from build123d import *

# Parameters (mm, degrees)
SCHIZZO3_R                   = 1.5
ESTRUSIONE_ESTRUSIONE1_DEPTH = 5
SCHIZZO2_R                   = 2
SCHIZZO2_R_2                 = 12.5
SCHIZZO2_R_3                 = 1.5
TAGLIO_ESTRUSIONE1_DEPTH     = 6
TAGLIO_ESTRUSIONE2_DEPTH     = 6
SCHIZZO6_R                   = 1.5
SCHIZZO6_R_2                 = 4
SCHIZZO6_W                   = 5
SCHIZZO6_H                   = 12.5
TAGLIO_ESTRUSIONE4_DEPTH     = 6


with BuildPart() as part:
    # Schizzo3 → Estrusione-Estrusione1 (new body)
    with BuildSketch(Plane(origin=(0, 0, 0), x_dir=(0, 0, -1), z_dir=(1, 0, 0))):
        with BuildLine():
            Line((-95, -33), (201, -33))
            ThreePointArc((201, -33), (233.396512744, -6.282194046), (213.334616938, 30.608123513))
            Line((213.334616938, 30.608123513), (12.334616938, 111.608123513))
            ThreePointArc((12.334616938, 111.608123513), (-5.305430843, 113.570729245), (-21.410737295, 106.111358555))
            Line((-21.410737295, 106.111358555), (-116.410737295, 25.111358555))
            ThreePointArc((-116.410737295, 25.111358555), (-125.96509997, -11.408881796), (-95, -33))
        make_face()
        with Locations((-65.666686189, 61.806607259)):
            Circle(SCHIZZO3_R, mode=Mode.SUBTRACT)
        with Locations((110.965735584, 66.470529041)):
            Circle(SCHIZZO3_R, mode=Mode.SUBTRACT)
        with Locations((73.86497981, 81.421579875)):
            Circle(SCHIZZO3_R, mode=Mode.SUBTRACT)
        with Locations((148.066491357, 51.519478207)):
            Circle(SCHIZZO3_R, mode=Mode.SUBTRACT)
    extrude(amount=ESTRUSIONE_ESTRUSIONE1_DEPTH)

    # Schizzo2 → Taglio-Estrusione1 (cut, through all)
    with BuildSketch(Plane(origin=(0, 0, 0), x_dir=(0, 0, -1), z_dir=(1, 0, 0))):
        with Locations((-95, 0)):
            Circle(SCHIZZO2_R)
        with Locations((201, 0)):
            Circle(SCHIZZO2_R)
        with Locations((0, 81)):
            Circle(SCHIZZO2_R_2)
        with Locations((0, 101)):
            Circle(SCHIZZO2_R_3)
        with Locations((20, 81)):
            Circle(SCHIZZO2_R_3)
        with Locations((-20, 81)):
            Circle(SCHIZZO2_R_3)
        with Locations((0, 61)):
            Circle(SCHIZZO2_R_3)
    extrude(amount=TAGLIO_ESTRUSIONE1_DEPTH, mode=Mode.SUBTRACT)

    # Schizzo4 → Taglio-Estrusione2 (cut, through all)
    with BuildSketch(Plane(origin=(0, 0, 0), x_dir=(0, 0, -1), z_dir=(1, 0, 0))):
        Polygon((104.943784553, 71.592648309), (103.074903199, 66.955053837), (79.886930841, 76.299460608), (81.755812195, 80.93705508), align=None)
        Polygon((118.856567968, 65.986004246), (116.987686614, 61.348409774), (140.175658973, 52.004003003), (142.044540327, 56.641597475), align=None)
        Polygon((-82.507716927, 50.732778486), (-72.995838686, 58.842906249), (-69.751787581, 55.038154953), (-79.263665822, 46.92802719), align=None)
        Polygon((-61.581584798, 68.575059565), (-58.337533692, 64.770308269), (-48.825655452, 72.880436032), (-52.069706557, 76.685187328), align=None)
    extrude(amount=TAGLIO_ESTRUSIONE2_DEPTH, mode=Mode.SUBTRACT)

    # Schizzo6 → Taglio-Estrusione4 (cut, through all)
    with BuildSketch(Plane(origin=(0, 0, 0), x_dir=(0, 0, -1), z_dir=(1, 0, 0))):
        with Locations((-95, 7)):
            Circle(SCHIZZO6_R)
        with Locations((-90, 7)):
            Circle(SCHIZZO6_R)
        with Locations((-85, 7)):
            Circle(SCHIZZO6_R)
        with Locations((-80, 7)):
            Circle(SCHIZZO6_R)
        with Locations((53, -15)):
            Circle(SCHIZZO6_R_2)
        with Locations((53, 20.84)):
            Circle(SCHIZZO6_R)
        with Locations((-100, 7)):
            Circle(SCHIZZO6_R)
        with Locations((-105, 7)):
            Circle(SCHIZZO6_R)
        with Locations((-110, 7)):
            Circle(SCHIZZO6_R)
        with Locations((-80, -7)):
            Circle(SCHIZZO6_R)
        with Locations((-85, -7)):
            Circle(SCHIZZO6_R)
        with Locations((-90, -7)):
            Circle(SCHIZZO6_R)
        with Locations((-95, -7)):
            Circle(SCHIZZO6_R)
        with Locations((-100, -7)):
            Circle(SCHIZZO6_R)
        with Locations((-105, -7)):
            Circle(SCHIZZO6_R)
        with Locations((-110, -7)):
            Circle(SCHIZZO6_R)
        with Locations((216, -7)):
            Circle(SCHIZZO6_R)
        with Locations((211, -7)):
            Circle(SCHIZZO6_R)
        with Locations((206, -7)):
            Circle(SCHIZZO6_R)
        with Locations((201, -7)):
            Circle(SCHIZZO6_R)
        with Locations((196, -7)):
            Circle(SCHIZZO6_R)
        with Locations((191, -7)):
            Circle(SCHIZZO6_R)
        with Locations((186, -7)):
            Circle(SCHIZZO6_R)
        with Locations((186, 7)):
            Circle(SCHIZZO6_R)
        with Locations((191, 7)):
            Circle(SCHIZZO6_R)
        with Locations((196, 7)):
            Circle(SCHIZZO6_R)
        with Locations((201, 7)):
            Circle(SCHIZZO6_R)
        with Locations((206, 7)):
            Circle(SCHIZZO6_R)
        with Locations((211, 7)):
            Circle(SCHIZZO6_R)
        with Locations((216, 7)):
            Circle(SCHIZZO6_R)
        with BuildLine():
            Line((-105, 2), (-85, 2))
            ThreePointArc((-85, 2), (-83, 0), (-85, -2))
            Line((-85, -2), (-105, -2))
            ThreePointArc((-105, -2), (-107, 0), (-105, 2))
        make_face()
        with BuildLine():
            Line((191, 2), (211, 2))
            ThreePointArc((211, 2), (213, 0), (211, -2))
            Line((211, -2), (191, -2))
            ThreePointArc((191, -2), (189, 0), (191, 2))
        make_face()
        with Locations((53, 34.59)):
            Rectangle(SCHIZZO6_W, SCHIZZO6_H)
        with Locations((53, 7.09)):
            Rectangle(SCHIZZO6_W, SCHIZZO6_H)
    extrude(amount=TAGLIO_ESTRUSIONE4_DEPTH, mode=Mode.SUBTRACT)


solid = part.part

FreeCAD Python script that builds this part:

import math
import FreeCAD as App
import Part
import Sketcher
from FreeCAD import Vector

doc = App.newDocument("Part")
body = doc.addObject("PartDesign::Body", "Body")

# Sketch on YZ plane
sketch1 = doc.addObject("Sketcher::SketchObject", "Sketch")
body.addObject(sketch1)
sketch1.AttachmentSupport = (doc.YZ_Plane, [""])
sketch1.MapMode = "FlatFace"
sketch1.addGeometry(Part.LineSegment(Vector(-33, 95, 0), Vector(-33, -201, 0)), False)
sketch1.addGeometry(Part.ArcOfCircle(Part.Circle(Vector(0, -201, 0), Vector(0, 0, 1), 33), math.radians(180), math.radians(338)), False)
sketch1.addGeometry(Part.LineSegment(Vector(30.6, -213.3, 0), Vector(111.6, -12.3, 0)), False)
sketch1.addGeometry(Part.ArcOfCircle(Part.Circle(Vector(81, 0, 0), Vector(0, 0, 1), 33), math.radians(-22), math.radians(40)), False)
sketch1.addGeometry(Part.LineSegment(Vector(106.1, 21.4, 0), Vector(25.1, 116.4, 0)), False)
sketch1.addGeometry(Part.ArcOfCircle(Part.Circle(Vector(0, 95, 0), Vector(0, 0, 1), 33), math.radians(40), math.radians(180)), False)
sketch1.addGeometry(Part.Circle(Vector(61.8, 65.7, 0), Vector(0, 0, 1), 1.5), False)
sketch1.addGeometry(Part.Circle(Vector(51.5, -148.1, 0), Vector(0, 0, 1), 1.5), False)
sketch1.addGeometry(Part.Circle(Vector(66.5, -111, 0), Vector(0, 0, 1), 1.5), False)
sketch1.addGeometry(Part.Circle(Vector(81.4, -73.9, 0), Vector(0, 0, 1), 1.5), False)
sketch1.addConstraint(Sketcher.Constraint("Tangent", 0, 2, 1, 1))
sketch1.addConstraint(Sketcher.Constraint("Tangent", 1, 2, 2, 1))
sketch1.addConstraint(Sketcher.Constraint("Tangent", 2, 2, 3, 1))
sketch1.addConstraint(Sketcher.Constraint("Tangent", 3, 2, 4, 1))
sketch1.addConstraint(Sketcher.Constraint("Tangent", 4, 2, 5, 1))
sketch1.addConstraint(Sketcher.Constraint("Tangent", 5, 2, 0, 1))
sketch1.addConstraint(Sketcher.Constraint("Vertical", 0))
sketch1.addConstraint(Sketcher.Constraint("Equal", 1, 3))
sketch1.addConstraint(Sketcher.Constraint("Equal", 3, 5))
sketch1.addConstraint(Sketcher.Constraint("Equal", 6, 7))
sketch1.addConstraint(Sketcher.Constraint("Equal", 7, 8))
sketch1.addConstraint(Sketcher.Constraint("Equal", 8, 9))
sketch1.addConstraint(Sketcher.Constraint("PointOnObject", 1, 3, -2))
sketch1.addConstraint(Sketcher.Constraint("PointOnObject", 3, 3, -1))
sketch1.addConstraint(Sketcher.Constraint("Diameter", 6, 3.0))
sketch1.addConstraint(Sketcher.Constraint("Radius", 1, 33.0))
sketch1.addConstraint(Sketcher.Constraint("DistanceY", 0, 2, 0, 1, 296.0))
sketch1.addConstraint(Sketcher.Constraint("DistanceY", 1, 3, -1, 1, 201.0))
sketch1.addConstraint(Sketcher.Constraint("DistanceX", -1, 1, 3, 3, 81.0))
sketch1.addConstraint(Sketcher.Constraint("DistanceX", 7, 3, 9, 3, 29.902102))
sketch1.addConstraint(Sketcher.Constraint("DistanceX", -1, 1, 7, 3, 51.519478))
sketch1.addConstraint(Sketcher.Constraint("DistanceY", 7, 3, -1, 1, 148.066491))
sketch1.addConstraint(Sketcher.Constraint("DistanceX", -1, 1, 8, 3, 66.470529))
sketch1.addConstraint(Sketcher.Constraint("DistanceY", 9, 3, -1, 1, 73.86498))
sketch1.addConstraint(Sketcher.Constraint("DistanceX", 7, 3, 6, 3, 10.287129))
sketch1.addConstraint(Sketcher.Constraint("DistanceY", 8, 3, 6, 3, 176.632422))
sketch1.addConstraint(Sketcher.Constraint("DistanceY", 1, 2, 8, 3, 102.368881))
pad1 = doc.addObject("PartDesign::Pad", "Pad")
body.addObject(pad1)
pad1.Profile = sketch1
pad1.Length = 5

# Sketch on YZ plane
sketch2 = doc.addObject("Sketcher::SketchObject", "Sketch001")
body.addObject(sketch2)
sketch2.AttachmentSupport = (doc.YZ_Plane, [""])
sketch2.MapMode = "FlatFace"
sketch2.addGeometry(Part.Circle(Vector(0, 95, 0), Vector(0, 0, 1), 2), False)
sketch2.addGeometry(Part.Circle(Vector(0, -201, 0), Vector(0, 0, 1), 2), False)
sketch2.addGeometry(Part.Circle(Vector(81, 0, 0), Vector(0, 0, 1), 12.5), False)
sketch2.addGeometry(Part.Circle(Vector(101, 0, 0), Vector(0, 0, 1), 1.5), False)
sketch2.addGeometry(Part.Circle(Vector(81, -20, 0), Vector(0, 0, 1), 1.5), False)
sketch2.addGeometry(Part.Circle(Vector(81, 20, 0), Vector(0, 0, 1), 1.5), False)
sketch2.addGeometry(Part.Circle(Vector(61, 0, 0), Vector(0, 0, 1), 1.5), False)
sketch2.addConstraint(Sketcher.Constraint("Equal", 0, 1))
sketch2.addConstraint(Sketcher.Constraint("Equal", 3, 4))
sketch2.addConstraint(Sketcher.Constraint("Equal", 4, 5))
sketch2.addConstraint(Sketcher.Constraint("Equal", 5, 6))
sketch2.addConstraint(Sketcher.Constraint("Symmetric", 4, 3, 5, 3, -1))
sketch2.addConstraint(Sketcher.Constraint("PointOnObject", 0, 3, -2))
sketch2.addConstraint(Sketcher.Constraint("PointOnObject", 1, 3, -2))
sketch2.addConstraint(Sketcher.Constraint("PointOnObject", 2, 3, -1))
sketch2.addConstraint(Sketcher.Constraint("PointOnObject", 3, 3, -1))
sketch2.addConstraint(Sketcher.Constraint("PointOnObject", 6, 3, -1))
sketch2.addConstraint(Sketcher.Constraint("Vertical", 2, 3, 4, 3))
sketch2.addConstraint(Sketcher.Constraint("Diameter", 0, 4.0))
sketch2.addConstraint(Sketcher.Constraint("Diameter", 2, 25.0))
sketch2.addConstraint(Sketcher.Constraint("Diameter", 3, 3.0))
sketch2.addConstraint(Sketcher.Constraint("DistanceY", -1, 1, 0, 3, 95.0))
sketch2.addConstraint(Sketcher.Constraint("DistanceY", 1, 3, -1, 1, 201.0))
sketch2.addConstraint(Sketcher.Constraint("DistanceX", -1, 1, 2, 3, 81.0))
sketch2.addConstraint(Sketcher.Constraint("DistanceX", -1, 1, 3, 3, 101.0))
sketch2.addConstraint(Sketcher.Constraint("DistanceY", 4, 3, -1, 1, 20.0))
sketch2.addConstraint(Sketcher.Constraint("DistanceX", -1, 1, 6, 3, 61.0))
pocket1 = doc.addObject("PartDesign::Pocket", "Pocket")
body.addObject(pocket1)
pocket1.Profile = sketch2
pocket1.Type = "ThroughAll"
pocket1.Reversed = True

# Sketch on YZ plane
sketch3 = doc.addObject("Sketcher::SketchObject", "Sketch002")
body.addObject(sketch3)
sketch3.AttachmentSupport = (doc.YZ_Plane, [""])
sketch3.MapMode = "FlatFace"
sketch3.addGeometry(Part.LineSegment(Vector(67, -103.1, 0), Vector(71.6, -104.9, 0)), False)
sketch3.addGeometry(Part.LineSegment(Vector(71.6, -104.9, 0), Vector(80.9, -81.8, 0)), False)
sketch3.addGeometry(Part.LineSegment(Vector(80.9, -81.8, 0), Vector(76.3, -79.9, 0)), False)
sketch3.addGeometry(Part.LineSegment(Vector(76.3, -79.9, 0), Vector(67, -103.1, 0)), False)
sketch3.addGeometry(Part.LineSegment(Vector(66, -118.9, 0), Vector(61.3, -117, 0)), False)
sketch3.addGeometry(Part.LineSegment(Vector(61.3, -117, 0), Vector(52, -140.2, 0)), False)
sketch3.addGeometry(Part.LineSegment(Vector(52, -140.2, 0), Vector(56.6, -142, 0)), False)
sketch3.addGeometry(Part.LineSegment(Vector(56.6, -142, 0), Vector(66, -118.9, 0)), False)
sketch3.addGeometry(Part.LineSegment(Vector(58.8, 73, 0), Vector(50.7, 82.5, 0)), False)
sketch3.addGeometry(Part.LineSegment(Vector(50.7, 82.5, 0), Vector(46.9, 79.3, 0)), False)
sketch3.addGeometry(Part.LineSegment(Vector(46.9, 79.3, 0), Vector(55, 69.8, 0)), False)
sketch3.addGeometry(Part.LineSegment(Vector(55, 69.8, 0), Vector(58.8, 73, 0)), False)
sketch3.addGeometry(Part.LineSegment(Vector(68.6, 61.6, 0), Vector(64.8, 58.3, 0)), False)
sketch3.addGeometry(Part.LineSegment(Vector(64.8, 58.3, 0), Vector(72.9, 48.8, 0)), False)
sketch3.addGeometry(Part.LineSegment(Vector(72.9, 48.8, 0), Vector(76.7, 52.1, 0)), False)
sketch3.addGeometry(Part.LineSegment(Vector(76.7, 52.1, 0), Vector(68.6, 61.6, 0)), False)
sketch3.addConstraint(Sketcher.Constraint("Coincident", 0, 2, 1, 1))
sketch3.addConstraint(Sketcher.Constraint("Coincident", 1, 2, 2, 1))
sketch3.addConstraint(Sketcher.Constraint("Coincident", 2, 2, 3, 1))
sketch3.addConstraint(Sketcher.Constraint("Coincident", 3, 2, 0, 1))
sketch3.addConstraint(Sketcher.Constraint("Coincident", 4, 2, 5, 1))
sketch3.addConstraint(Sketcher.Constraint("Coincident", 5, 2, 6, 1))
sketch3.addConstraint(Sketcher.Constraint("Coincident", 6, 2, 7, 1))
sketch3.addConstraint(Sketcher.Constraint("Coincident", 7, 2, 4, 1))
sketch3.addConstraint(Sketcher.Constraint("Coincident", 8, 2, 9, 1))
sketch3.addConstraint(Sketcher.Constraint("Coincident", 9, 2, 10, 1))
sketch3.addConstraint(Sketcher.Constraint("Coincident", 10, 2, 11, 1))
sketch3.addConstraint(Sketcher.Constraint("Coincident", 11, 2, 8, 1))
sketch3.addConstraint(Sketcher.Constraint("Coincident", 12, 2, 13, 1))
sketch3.addConstraint(Sketcher.Constraint("Coincident", 13, 2, 14, 1))
sketch3.addConstraint(Sketcher.Constraint("Coincident", 14, 2, 15, 1))
sketch3.addConstraint(Sketcher.Constraint("Coincident", 15, 2, 12, 1))
sketch3.addConstraint(Sketcher.Constraint("Perpendicular", 0, 1))
sketch3.addConstraint(Sketcher.Constraint("Perpendicular", 1, 2))
sketch3.addConstraint(Sketcher.Constraint("Perpendicular", 2, 3))
sketch3.addConstraint(Sketcher.Constraint("Perpendicular", 3, 4))
sketch3.addConstraint(Sketcher.Constraint("Perpendicular", 4, 5))
sketch3.addConstraint(Sketcher.Constraint("Perpendicular", 5, 6))
sketch3.addConstraint(Sketcher.Constraint("Perpendicular", 6, 7))
sketch3.addConstraint(Sketcher.Constraint("Perpendicular", 8, 9))
sketch3.addConstraint(Sketcher.Constraint("Perpendicular", 9, 10))
sketch3.addConstraint(Sketcher.Constraint("Perpendicular", 10, 11))
sketch3.addConstraint(Sketcher.Constraint("Parallel", 11, 12))
sketch3.addConstraint(Sketcher.Constraint("Perpendicular", 12, 13))
sketch3.addConstraint(Sketcher.Constraint("Perpendicular", 13, 14))
sketch3.addConstraint(Sketcher.Constraint("Perpendicular", 14, 15))
sketch3.addConstraint(Sketcher.Constraint("Equal", 2, 4))
sketch3.addConstraint(Sketcher.Constraint("Equal", 3, 5))
sketch3.addConstraint(Sketcher.Constraint("Equal", 6, 9))
sketch3.addConstraint(Sketcher.Constraint("Equal", 11, 12))
sketch3.addConstraint(Sketcher.Constraint("Equal", 10, 13))
sketch3.addConstraint(Sketcher.Constraint("Distance", 0, 5.0))
sketch3.addConstraint(Sketcher.Constraint("Distance", 1, 25.0))
sketch3.addConstraint(Sketcher.Constraint("Distance", 8, 12.5))
sketch3.addConstraint(Sketcher.Constraint("DistanceX", 3, 2, 1, 2, 13.982001))
sketch3.addConstraint(Sketcher.Constraint("DistanceY", 0, 2, 8, 2, 187.451501))
sketch3.addConstraint(Sketcher.Constraint("DistanceX", 10, 2, 1, 2, 25.8989))
sketch3.addConstraint(Sketcher.Constraint("DistanceY", 1, 2, 10, 2, 151.5076))
sketch3.addConstraint(Sketcher.Constraint("DistanceX", -1, 1, 0, 2, 71.592648))
sketch3.addConstraint(Sketcher.Constraint("DistanceY", 2, 2, -1, 1, 79.886931))
sketch3.addConstraint(Sketcher.Constraint("DistanceX", -1, 1, 4, 2, 61.34841))
sketch3.addConstraint(Sketcher.Constraint("DistanceY", 5, 2, -1, 1, 140.175659))
sketch3.addConstraint(Sketcher.Constraint("DistanceX", -1, 1, 12, 2, 64.770308))
sketch3.addConstraint(Sketcher.Constraint("DistanceY", 13, 2, 9, 2, 30.43801))
pocket2 = doc.addObject("PartDesign::Pocket", "Pocket001")
body.addObject(pocket2)
pocket2.Profile = sketch3
pocket2.Type = "ThroughAll"
pocket2.Reversed = True

# Sketch on YZ plane
sketch4 = doc.addObject("Sketcher::SketchObject", "Sketch003")
body.addObject(sketch4)
sketch4.AttachmentSupport = (doc.YZ_Plane, [""])
sketch4.MapMode = "FlatFace"
sketch4.addGeometry(Part.Circle(Vector(7, 95, 0), Vector(0, 0, 1), 1.5), False)
sketch4.addGeometry(Part.Circle(Vector(7, 90, 0), Vector(0, 0, 1), 1.5), False)
sketch4.addGeometry(Part.Circle(Vector(7, 85, 0), Vector(0, 0, 1), 1.5), False)
sketch4.addGeometry(Part.Circle(Vector(7, 80, 0), Vector(0, 0, 1), 1.5), False)
sketch4.addGeometry(Part.Circle(Vector(-15, -53, 0), Vector(0, 0, 1), 4), False)
sketch4.addGeometry(Part.Circle(Vector(20.8, -53, 0), Vector(0, 0, 1), 1.5), False)
sketch4.addGeometry(Part.Circle(Vector(7, 100, 0), Vector(0, 0, 1), 1.5), False)
sketch4.addGeometry(Part.Circle(Vector(7, 105, 0), Vector(0, 0, 1), 1.5), False)
sketch4.addGeometry(Part.Circle(Vector(7, 110, 0), Vector(0, 0, 1), 1.5), False)
sketch4.addGeometry(Part.Circle(Vector(-7, 80, 0), Vector(0, 0, 1), 1.5), False)
sketch4.addGeometry(Part.Circle(Vector(-7, 85, 0), Vector(0, 0, 1), 1.5), False)
sketch4.addGeometry(Part.Circle(Vector(-7, 90, 0), Vector(0, 0, 1), 1.5), False)
sketch4.addGeometry(Part.Circle(Vector(-7, 95, 0), Vector(0, 0, 1), 1.5), False)
sketch4.addGeometry(Part.Circle(Vector(-7, 100, 0), Vector(0, 0, 1), 1.5), False)
sketch4.addGeometry(Part.Circle(Vector(-7, 105, 0), Vector(0, 0, 1), 1.5), False)
sketch4.addGeometry(Part.Circle(Vector(-7, 110, 0), Vector(0, 0, 1), 1.5), False)
sketch4.addGeometry(Part.Circle(Vector(-7, -216, 0), Vector(0, 0, 1), 1.5), False)
sketch4.addGeometry(Part.Circle(Vector(-7, -211, 0), Vector(0, 0, 1), 1.5), False)
sketch4.addGeometry(Part.Circle(Vector(-7, -206, 0), Vector(0, 0, 1), 1.5), False)
sketch4.addGeometry(Part.Circle(Vector(-7, -201, 0), Vector(0, 0, 1), 1.5), False)
sketch4.addGeometry(Part.Circle(Vector(-7, -196, 0), Vector(0, 0, 1), 1.5), False)
sketch4.addGeometry(Part.Circle(Vector(-7, -191, 0), Vector(0, 0, 1), 1.5), False)
sketch4.addGeometry(Part.Circle(Vector(-7, -186, 0), Vector(0, 0, 1), 1.5), False)
sketch4.addGeometry(Part.Circle(Vector(7, -186, 0), Vector(0, 0, 1), 1.5), False)
sketch4.addGeometry(Part.Circle(Vector(7, -191, 0), Vector(0, 0, 1), 1.5), False)
sketch4.addGeometry(Part.Circle(Vector(7, -196, 0), Vector(0, 0, 1), 1.5), False)
sketch4.addGeometry(Part.Circle(Vector(7, -201, 0), Vector(0, 0, 1), 1.5), False)
sketch4.addGeometry(Part.Circle(Vector(7, -206, 0), Vector(0, 0, 1), 1.5), False)
sketch4.addGeometry(Part.Circle(Vector(7, -211, 0), Vector(0, 0, 1), 1.5), False)
sketch4.addGeometry(Part.Circle(Vector(7, -216, 0), Vector(0, 0, 1), 1.5), False)
sketch4.addGeometry(Part.LineSegment(Vector(2, 85, 0), Vector(2, 105, 0)), False)
sketch4.addGeometry(Part.ArcOfCircle(Part.Circle(Vector(0, 105, 0), Vector(0, 0, 1), 2), math.radians(0), math.radians(180)), False)
sketch4.addGeometry(Part.LineSegment(Vector(-2, 105, 0), Vector(-2, 85, 0)), False)
sketch4.addGeometry(Part.ArcOfCircle(Part.Circle(Vector(0, 85, 0), Vector(0, 0, 1), 2), math.radians(180), math.radians(360)), False)
sketch4.addGeometry(Part.LineSegment(Vector(2, -211, 0), Vector(2, -191, 0)), False)
sketch4.addGeometry(Part.ArcOfCircle(Part.Circle(Vector(0, -191, 0), Vector(0, 0, 1), 2), math.radians(0), math.radians(180)), False)
sketch4.addGeometry(Part.LineSegment(Vector(-2, -191, 0), Vector(-2, -211, 0)), False)
sketch4.addGeometry(Part.ArcOfCircle(Part.Circle(Vector(0, -211, 0), Vector(0, 0, 1), 2), math.radians(180), math.radians(360)), False)
sketch4.addGeometry(Part.LineSegment(Vector(40.8, -50.5, 0), Vector(28.3, -50.5, 0)), False)
sketch4.addGeometry(Part.LineSegment(Vector(28.3, -50.5, 0), Vector(28.3, -55.5, 0)), False)
sketch4.addGeometry(Part.LineSegment(Vector(28.3, -55.5, 0), Vector(40.8, -55.5, 0)), False)
sketch4.addGeometry(Part.LineSegment(Vector(40.8, -55.5, 0), Vector(40.8, -50.5, 0)), False)
sketch4.addGeometry(Part.LineSegment(Vector(13.3, -50.5, 0), Vector(0.8, -50.5, 0)), False)
sketch4.addGeometry(Part.LineSegment(Vector(0.8, -50.5, 0), Vector(0.8, -55.5, 0)), False)
sketch4.addGeometry(Part.LineSegment(Vector(0.8, -55.5, 0), Vector(13.3, -55.5, 0)), False)
sketch4.addGeometry(Part.LineSegment(Vector(13.3, -55.5, 0), Vector(13.3, -50.5, 0)), False)
sketch4.addConstraint(Sketcher.Constraint("Tangent", 30, 2, 31, 1))
sketch4.addConstraint(Sketcher.Constraint("Tangent", 31, 2, 32, 1))
sketch4.addConstraint(Sketcher.Constraint("Tangent", 32, 2, 33, 1))
sketch4.addConstraint(Sketcher.Constraint("Tangent", 33, 2, 30, 1))
sketch4.addConstraint(Sketcher.Constraint("Tangent", 34, 2, 35, 1))
sketch4.addConstraint(Sketcher.Constraint("Tangent", 35, 2, 36, 1))
sketch4.addConstraint(Sketcher.Constraint("Tangent", 36, 2, 37, 1))
sketch4.addConstraint(Sketcher.Constraint("Tangent", 37, 2, 34, 1))
sketch4.addConstraint(Sketcher.Constraint("Coincident", 38, 2, 39, 1))
sketch4.addConstraint(Sketcher.Constraint("Coincident", 39, 2, 40, 1))
sketch4.addConstraint(Sketcher.Constraint("Coincident", 40, 2, 41, 1))
sketch4.addConstraint(Sketcher.Constraint("Coincident", 41, 2, 38, 1))
sketch4.addConstraint(Sketcher.Constraint("Coincident", 42, 2, 43, 1))
sketch4.addConstraint(Sketcher.Constraint("Coincident", 43, 2, 44, 1))
sketch4.addConstraint(Sketcher.Constraint("Coincident", 44, 2, 45, 1))
sketch4.addConstraint(Sketcher.Constraint("Coincident", 45, 2, 42, 1))
sketch4.addConstraint(Sketcher.Constraint("Vertical", 30))
sketch4.addConstraint(Sketcher.Constraint("Vertical", 32))
sketch4.addConstraint(Sketcher.Constraint("Vertical", 34))
sketch4.addConstraint(Sketcher.Constraint("Vertical", 36))
sketch4.addConstraint(Sketcher.Constraint("Horizontal", 38))
sketch4.addConstraint(Sketcher.Constraint("Vertical", 39))
sketch4.addConstraint(Sketcher.Constraint("Horizontal", 40))
sketch4.addConstraint(Sketcher.Constraint("Vertical", 41))
sketch4.addConstraint(Sketcher.Constraint("Horizontal", 42))
sketch4.addConstraint(Sketcher.Constraint("Vertical", 43))
sketch4.addConstraint(Sketcher.Constraint("Horizontal", 44))
sketch4.addConstraint(Sketcher.Constraint("Vertical", 45))
sketch4.addConstraint(Sketcher.Constraint("Equal", 0, 1))
sketch4.addConstraint(Sketcher.Constraint("Equal", 1, 2))
sketch4.addConstraint(Sketcher.Constraint("Equal", 2, 3))
sketch4.addConstraint(Sketcher.Constraint("Equal", 3, 5))
sketch4.addConstraint(Sketcher.Constraint("Equal", 5, 6))
sketch4.addConstraint(Sketcher.Constraint("Equal", 6, 7))
sketch4.addConstraint(Sketcher.Constraint("Equal", 7, 8))
sketch4.addConstraint(Sketcher.Constraint("Equal", 8, 9))
sketch4.addConstraint(Sketcher.Constraint("Equal", 9, 10))
sketch4.addConstraint(Sketcher.Constraint("Equal", 10, 11))
sketch4.addConstraint(Sketcher.Constraint("Equal", 11, 12))
sketch4.addConstraint(Sketcher.Constraint("Equal", 12, 13))
sketch4.addConstraint(Sketcher.Constraint("Equal", 13, 14))
sketch4.addConstraint(Sketcher.Constraint("Equal", 14, 15))
sketch4.addConstraint(Sketcher.Constraint("Equal", 15, 16))
sketch4.addConstraint(Sketcher.Constraint("Equal", 16, 17))
sketch4.addConstraint(Sketcher.Constraint("Equal", 17, 18))
sketch4.addConstraint(Sketcher.Constraint("Equal", 18, 19))
sketch4.addConstraint(Sketcher.Constraint("Equal", 19, 20))
sketch4.addConstraint(Sketcher.Constraint("Equal", 20, 21))
sketch4.addConstraint(Sketcher.Constraint("Equal", 21, 22))
sketch4.addConstraint(Sketcher.Constraint("Equal", 22, 23))
sketch4.addConstraint(Sketcher.Constraint("Equal", 23, 24))
sketch4.addConstraint(Sketcher.Constraint("Equal", 24, 25))
sketch4.addConstraint(Sketcher.Constraint("Equal", 25, 26))
sketch4.addConstraint(Sketcher.Constraint("Equal", 26, 27))
sketch4.addConstraint(Sketcher.Constraint("Equal", 27, 28))
sketch4.addConstraint(Sketcher.Constraint("Equal", 28, 29))
sketch4.addConstraint(Sketcher.Constraint("Equal", 33, 35))
sketch4.addConstraint(Sketcher.Constraint("Symmetric", 3, 3, 9, 3, -2))
sketch4.addConstraint(Sketcher.Constraint("Symmetric", 2, 3, 10, 3, -2))
sketch4.addConstraint(Sketcher.Constraint("Symmetric", 1, 3, 11, 3, -2))
sketch4.addConstraint(Sketcher.Constraint("Symmetric", 0, 3, 12, 3, -2))
sketch4.addConstraint(Sketcher.Constraint("Symmetric", 6, 3, 13, 3, -2))
sketch4.addConstraint(Sketcher.Constraint("Symmetric", 7, 3, 14, 3, -2))
sketch4.addConstraint(Sketcher.Constraint("Symmetric", 8, 3, 15, 3, -2))
sketch4.addConstraint(Sketcher.Constraint("Symmetric", 22, 3, 23, 3, -2))
sketch4.addConstraint(Sketcher.Constraint("Symmetric", 21, 3, 24, 3, -2))
sketch4.addConstraint(Sketcher.Constraint("Symmetric", 20, 3, 25, 3, -2))
sketch4.addConstraint(Sketcher.Constraint("Symmetric", 19, 3, 26, 3, -2))
sketch4.addConstraint(Sketcher.Constraint("Symmetric", 18, 3, 27, 3, -2))
sketch4.addConstraint(Sketcher.Constraint("Symmetric", 17, 3, 28, 3, -2))
sketch4.addConstraint(Sketcher.Constraint("Symmetric", 16, 3, 29, 3, -2))
sketch4.addConstraint(Sketcher.Constraint("PointOnObject", 31, 3, -2))
sketch4.addConstraint(Sketcher.Constraint("PointOnObject", 35, 3, -2))
sketch4.addConstraint(Sketcher.Constraint("Horizontal", 4, 3, 5, 3))
sketch4.addConstraint(Sketcher.Constraint("Horizontal", 14, 3, 31, 3))
sketch4.addConstraint(Sketcher.Constraint("Horizontal", 10, 3, 33, 3))
sketch4.addConstraint(Sketcher.Constraint("Horizontal", 24, 3, 35, 3))
sketch4.addConstraint(Sketcher.Constraint("Horizontal", 28, 3, 37, 3))
sketch4.addConstraint(Sketcher.Constraint("Horizontal", 41, 2, 42, 2))
sketch4.addConstraint(Sketcher.Constraint("Horizontal", 40, 2, 43, 2))
sketch4.addConstraint(Sketcher.Constraint("Vertical", 0, 3, 1, 3))
sketch4.addConstraint(Sketcher.Constraint("Vertical", 1, 3, 2, 3))
sketch4.addConstraint(Sketcher.Constraint("Vertical", 2, 3, 3, 3))
sketch4.addConstraint(Sketcher.Constraint("Vertical", 3, 3, 6, 3))
sketch4.addConstraint(Sketcher.Constraint("Vertical", 6, 3, 7, 3))
sketch4.addConstraint(Sketcher.Constraint("Vertical", 7, 3, 8, 3))
sketch4.addConstraint(Sketcher.Constraint("Vertical", 15, 3, 16, 3))
sketch4.addConstraint(Sketcher.Constraint("Vertical", 16, 3, 17, 3))
sketch4.addConstraint(Sketcher.Constraint("Vertical", 17, 3, 18, 3))
sketch4.addConstraint(Sketcher.Constraint("Vertical", 18, 3, 19, 3))
sketch4.addConstraint(Sketcher.Constraint("Vertical", 19, 3, 20, 3))
sketch4.addConstraint(Sketcher.Constraint("Vertical", 20, 3, 21, 3))
sketch4.addConstraint(Sketcher.Constraint("Vertical", 21, 3, 22, 3))
sketch4.addConstraint(Sketcher.Constraint("Equal", 40, 42))
sketch4.addConstraint(Sketcher.Constraint("Equal", 32, 34))
sketch4.addConstraint(Sketcher.Constraint("Diameter", 0, 3.0))
sketch4.addConstraint(Sketcher.Constraint("Diameter", 4, 8.0))
sketch4.addConstraint(Sketcher.Constraint("Radius", 31, 2.0))
sketch4.addConstraint(Sketcher.Constraint("DistanceY", 30, 1, 30, 2, 20.0))
sketch4.addConstraint(Sketcher.Constraint("DistanceY", 39, 2, 39, 1, 5.0))
sketch4.addConstraint(Sketcher.Constraint("DistanceX", 38, 2, 38, 1, 12.5))
sketch4.addConstraint(Sketcher.Constraint("DistanceX", -1, 1, 0, 3, 7.0))
sketch4.addConstraint(Sketcher.Constraint("DistanceY", -1, 1, 0, 3, 95.0))
sketch4.addConstraint(Sketcher.Constraint("DistanceY", -1, 1, 1, 3, 90.0))
sketch4.addConstraint(Sketcher.Constraint("DistanceY", -1, 1, 2, 3, 85.0))
sketch4.addConstraint(Sketcher.Constraint("DistanceY", -1, 1, 3, 3, 80.0))
sketch4.addConstraint(Sketcher.Constraint("DistanceX", 4, 3, -1, 1, 15.0))
sketch4.addConstraint(Sketcher.Constraint("DistanceY", 4, 3, -1, 1, 53.0))
sketch4.addConstraint(Sketcher.Constraint("DistanceY", -1, 1, 6, 3, 100.0))
sketch4.addConstraint(Sketcher.Constraint("DistanceY", -1, 1, 8, 3, 110.0))
sketch4.addConstraint(Sketcher.Constraint("DistanceY", 16, 3, -1, 1, 216.0))
sketch4.addConstraint(Sketcher.Constraint("DistanceY", 17, 3, -1, 1, 211.0))
sketch4.addConstraint(Sketcher.Constraint("DistanceY", 18, 3, -1, 1, 206.0))
sketch4.addConstraint(Sketcher.Constraint("DistanceY", 19, 3, -1, 1, 201.0))
sketch4.addConstraint(Sketcher.Constraint("DistanceY", 20, 3, -1, 1, 196.0))
sketch4.addConstraint(Sketcher.Constraint("DistanceY", 22, 3, -1, 1, 186.0))
sketch4.addConstraint(Sketcher.Constraint("DistanceX", 5, 3, 40, 2, 20.0))
sketch4.addConstraint(Sketcher.Constraint("DistanceX", 42, 2, 5, 3, 20.0))
sketch4.addConstraint(Sketcher.Constraint("DistanceY", 38, 2, -1, 1, 50.5))
sketch4.addConstraint(Sketcher.Constraint("DistanceX", -1, 1, 5, 3, 20.84))
pocket3 = doc.addObject("PartDesign::Pocket", "Pocket002")
body.addObject(pocket3)
pocket3.Profile = sketch4
pocket3.Type = "ThroughAll"
pocket3.Reversed = True

doc.recompute()
